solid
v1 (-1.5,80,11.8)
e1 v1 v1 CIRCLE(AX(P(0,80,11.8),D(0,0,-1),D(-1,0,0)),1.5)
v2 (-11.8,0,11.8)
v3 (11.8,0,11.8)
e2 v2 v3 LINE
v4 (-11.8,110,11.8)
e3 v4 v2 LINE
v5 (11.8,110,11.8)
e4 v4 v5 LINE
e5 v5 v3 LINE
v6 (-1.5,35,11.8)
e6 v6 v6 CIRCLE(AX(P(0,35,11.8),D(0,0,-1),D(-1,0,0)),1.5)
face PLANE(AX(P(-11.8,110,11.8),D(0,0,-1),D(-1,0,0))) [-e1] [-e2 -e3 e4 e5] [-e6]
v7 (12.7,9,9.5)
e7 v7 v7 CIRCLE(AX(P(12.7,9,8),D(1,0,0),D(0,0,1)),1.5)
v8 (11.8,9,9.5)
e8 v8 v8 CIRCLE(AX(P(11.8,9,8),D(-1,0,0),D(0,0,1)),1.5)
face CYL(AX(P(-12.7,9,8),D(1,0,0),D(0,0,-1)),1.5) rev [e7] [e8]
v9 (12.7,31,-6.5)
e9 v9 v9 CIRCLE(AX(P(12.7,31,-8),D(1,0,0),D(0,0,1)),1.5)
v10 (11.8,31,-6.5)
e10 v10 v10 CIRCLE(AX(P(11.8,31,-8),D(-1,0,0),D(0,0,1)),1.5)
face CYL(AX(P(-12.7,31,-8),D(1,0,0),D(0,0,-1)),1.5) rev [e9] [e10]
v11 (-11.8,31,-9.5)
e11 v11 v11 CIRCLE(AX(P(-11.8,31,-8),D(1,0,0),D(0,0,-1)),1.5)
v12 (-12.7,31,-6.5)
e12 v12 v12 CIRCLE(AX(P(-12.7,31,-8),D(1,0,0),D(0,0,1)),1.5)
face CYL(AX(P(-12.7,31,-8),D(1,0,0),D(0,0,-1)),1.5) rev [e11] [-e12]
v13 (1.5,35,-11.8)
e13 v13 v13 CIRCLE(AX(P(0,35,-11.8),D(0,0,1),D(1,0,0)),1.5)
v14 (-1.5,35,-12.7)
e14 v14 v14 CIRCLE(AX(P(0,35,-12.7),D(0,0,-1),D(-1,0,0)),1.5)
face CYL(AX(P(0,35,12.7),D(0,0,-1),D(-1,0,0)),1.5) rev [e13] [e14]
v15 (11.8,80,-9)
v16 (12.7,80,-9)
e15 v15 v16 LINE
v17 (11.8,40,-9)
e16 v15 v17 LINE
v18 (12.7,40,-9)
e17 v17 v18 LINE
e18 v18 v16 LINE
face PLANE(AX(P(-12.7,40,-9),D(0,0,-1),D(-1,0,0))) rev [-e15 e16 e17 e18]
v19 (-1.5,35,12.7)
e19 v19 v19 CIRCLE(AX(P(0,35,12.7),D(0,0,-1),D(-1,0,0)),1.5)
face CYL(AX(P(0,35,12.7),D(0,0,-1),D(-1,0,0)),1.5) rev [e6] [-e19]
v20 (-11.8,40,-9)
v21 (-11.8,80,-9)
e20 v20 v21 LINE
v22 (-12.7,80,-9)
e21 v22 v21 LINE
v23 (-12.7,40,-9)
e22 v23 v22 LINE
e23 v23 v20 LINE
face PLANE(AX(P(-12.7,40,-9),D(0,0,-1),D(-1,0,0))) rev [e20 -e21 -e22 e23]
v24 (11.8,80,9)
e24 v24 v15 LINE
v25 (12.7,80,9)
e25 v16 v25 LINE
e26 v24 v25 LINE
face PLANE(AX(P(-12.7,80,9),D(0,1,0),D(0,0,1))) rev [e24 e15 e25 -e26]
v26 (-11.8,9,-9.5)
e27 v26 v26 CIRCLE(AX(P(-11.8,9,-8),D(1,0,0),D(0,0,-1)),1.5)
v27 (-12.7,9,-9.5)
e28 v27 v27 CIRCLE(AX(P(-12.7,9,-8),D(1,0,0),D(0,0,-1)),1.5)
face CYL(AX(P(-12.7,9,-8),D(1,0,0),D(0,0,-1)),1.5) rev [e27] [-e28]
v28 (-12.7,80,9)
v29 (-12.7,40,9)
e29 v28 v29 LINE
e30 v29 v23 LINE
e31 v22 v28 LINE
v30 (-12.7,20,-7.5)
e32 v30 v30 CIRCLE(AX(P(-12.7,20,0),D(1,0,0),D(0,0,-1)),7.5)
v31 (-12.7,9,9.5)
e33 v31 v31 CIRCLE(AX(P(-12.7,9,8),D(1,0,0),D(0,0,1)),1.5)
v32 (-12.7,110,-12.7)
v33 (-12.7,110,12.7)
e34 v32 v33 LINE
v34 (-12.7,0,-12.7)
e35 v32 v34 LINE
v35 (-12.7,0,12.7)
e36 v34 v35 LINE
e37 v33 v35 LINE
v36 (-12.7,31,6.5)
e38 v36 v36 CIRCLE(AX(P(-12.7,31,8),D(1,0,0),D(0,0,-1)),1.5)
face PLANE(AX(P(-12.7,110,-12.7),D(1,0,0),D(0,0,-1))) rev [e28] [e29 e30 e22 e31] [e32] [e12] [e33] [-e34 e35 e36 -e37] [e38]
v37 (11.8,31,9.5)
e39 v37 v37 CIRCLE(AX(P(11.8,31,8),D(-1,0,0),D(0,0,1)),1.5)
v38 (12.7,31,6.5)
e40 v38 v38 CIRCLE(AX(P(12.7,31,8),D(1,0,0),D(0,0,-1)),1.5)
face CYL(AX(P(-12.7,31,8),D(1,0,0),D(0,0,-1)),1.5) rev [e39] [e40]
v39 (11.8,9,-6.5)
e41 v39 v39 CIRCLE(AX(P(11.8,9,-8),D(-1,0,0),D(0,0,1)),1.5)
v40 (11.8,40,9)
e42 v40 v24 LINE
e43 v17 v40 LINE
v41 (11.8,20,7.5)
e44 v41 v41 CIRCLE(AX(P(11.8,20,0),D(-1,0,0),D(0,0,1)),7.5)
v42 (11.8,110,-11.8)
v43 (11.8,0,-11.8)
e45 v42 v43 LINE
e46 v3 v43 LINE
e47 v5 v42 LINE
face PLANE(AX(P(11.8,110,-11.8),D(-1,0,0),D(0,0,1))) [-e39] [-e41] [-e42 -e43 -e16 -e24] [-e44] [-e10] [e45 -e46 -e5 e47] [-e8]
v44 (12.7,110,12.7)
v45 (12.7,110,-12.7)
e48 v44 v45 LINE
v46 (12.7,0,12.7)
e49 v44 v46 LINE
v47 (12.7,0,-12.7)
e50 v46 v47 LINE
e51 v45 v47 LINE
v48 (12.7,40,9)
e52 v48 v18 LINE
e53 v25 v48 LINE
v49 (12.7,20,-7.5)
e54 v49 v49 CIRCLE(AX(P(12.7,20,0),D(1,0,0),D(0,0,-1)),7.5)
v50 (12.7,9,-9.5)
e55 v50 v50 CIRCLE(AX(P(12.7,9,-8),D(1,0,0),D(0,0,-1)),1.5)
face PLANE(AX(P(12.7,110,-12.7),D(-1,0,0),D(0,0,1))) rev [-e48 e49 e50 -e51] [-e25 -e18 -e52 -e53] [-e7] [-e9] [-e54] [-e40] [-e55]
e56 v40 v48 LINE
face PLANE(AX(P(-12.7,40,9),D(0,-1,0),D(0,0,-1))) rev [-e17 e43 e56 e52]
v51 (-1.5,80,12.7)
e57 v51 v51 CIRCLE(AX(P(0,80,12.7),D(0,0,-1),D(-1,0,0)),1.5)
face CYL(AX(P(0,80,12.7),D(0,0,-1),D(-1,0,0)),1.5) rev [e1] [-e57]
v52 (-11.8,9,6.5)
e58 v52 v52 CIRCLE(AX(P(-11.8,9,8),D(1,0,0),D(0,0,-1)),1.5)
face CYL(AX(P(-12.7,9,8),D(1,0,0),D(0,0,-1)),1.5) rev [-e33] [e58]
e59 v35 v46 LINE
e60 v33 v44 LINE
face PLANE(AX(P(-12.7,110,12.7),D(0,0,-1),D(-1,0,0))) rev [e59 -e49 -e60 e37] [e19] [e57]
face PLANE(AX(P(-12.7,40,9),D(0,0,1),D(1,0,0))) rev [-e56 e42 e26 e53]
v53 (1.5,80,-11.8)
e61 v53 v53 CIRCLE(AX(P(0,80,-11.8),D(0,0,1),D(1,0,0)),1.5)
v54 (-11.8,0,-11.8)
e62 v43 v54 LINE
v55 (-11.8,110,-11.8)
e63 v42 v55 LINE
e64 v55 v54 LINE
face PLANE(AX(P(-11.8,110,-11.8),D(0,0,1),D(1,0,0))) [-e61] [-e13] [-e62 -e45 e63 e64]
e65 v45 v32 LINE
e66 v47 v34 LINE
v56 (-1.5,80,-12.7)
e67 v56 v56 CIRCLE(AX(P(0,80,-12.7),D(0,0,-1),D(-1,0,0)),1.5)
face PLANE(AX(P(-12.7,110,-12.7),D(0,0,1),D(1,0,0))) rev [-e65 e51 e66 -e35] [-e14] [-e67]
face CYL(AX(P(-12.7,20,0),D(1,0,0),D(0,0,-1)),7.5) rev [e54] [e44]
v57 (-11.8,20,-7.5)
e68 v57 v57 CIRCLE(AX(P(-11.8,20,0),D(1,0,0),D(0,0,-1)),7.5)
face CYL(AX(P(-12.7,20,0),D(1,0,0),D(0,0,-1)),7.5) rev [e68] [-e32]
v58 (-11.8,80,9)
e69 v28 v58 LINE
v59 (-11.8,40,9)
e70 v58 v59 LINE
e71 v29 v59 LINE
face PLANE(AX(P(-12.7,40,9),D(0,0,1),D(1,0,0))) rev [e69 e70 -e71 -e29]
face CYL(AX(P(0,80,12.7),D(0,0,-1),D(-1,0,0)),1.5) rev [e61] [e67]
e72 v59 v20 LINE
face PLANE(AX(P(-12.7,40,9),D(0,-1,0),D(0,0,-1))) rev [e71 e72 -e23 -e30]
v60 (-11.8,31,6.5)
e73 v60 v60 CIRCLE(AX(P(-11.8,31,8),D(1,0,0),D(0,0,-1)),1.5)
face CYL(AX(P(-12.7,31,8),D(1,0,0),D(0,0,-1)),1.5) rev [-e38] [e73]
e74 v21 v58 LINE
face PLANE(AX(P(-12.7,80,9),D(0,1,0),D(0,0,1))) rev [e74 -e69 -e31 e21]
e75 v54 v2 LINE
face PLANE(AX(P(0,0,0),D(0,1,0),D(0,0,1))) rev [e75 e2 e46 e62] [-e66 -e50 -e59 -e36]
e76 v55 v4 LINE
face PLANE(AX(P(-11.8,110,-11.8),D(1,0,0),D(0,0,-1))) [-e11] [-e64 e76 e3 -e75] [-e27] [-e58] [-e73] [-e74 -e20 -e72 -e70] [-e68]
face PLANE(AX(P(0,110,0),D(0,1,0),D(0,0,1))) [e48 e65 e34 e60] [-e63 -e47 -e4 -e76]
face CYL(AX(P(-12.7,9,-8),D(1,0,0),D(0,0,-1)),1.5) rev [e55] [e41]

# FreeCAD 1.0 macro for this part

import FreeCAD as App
import Part
import Sketcher
from FreeCAD import Vector

doc = App.newDocument("Part")
params = doc.addObject("Spreadsheet::Sheet", "Params")
for row, (alias, value) in enumerate([
    ("sketch1_width", "25.4 mm"),
    ("sketch1_width2", "23.6 mm"),
    ("pad1_length", "110 mm"),
    ("sketch2_diameter", "15 mm"),
    ("sketch2_width", "40 mm"),
    ("sketch2_height", "18 mm"),
    ("pocket1_length", "25.4 mm"),
    ("sketch3_diameter", "3 mm"),
    ("pocket2_length", "25.4 mm"),
    ("sketch4_diameter", "3 mm"),
    ("pocket3_length", "25.4 mm"),
], start=1):
    params.set(f"A{row}", alias)
    params.set(f"B{row}", "=" + value)
    params.setAlias(f"B{row}", alias)

body = doc.addObject("PartDesign::Body", "Body")

# Sketch on XZ plane
sketch1 = doc.addObject("Sketcher::SketchObject", "Sketch")
body.addObject(sketch1)
sketch1.AttachmentSupport = (doc.XZ_Plane, [""])
sketch1.MapMode = "FlatFace"
sketch1.addGeometry([
    Part.LineSegment(Vector(-12.7, -12.7, 0), Vector(-12.7, 12.7, 0)),  # 0
    Part.LineSegment(Vector(-12.7, 12.7, 0), Vector(12.7, 12.7, 0)),  # 1
    Part.LineSegment(Vector(12.7, 12.7, 0), Vector(12.7, -12.7, 0)),  # 2
    Part.LineSegment(Vector(12.7, -12.7, 0), Vector(-12.7, -12.7, 0)),  # 3
    Part.LineSegment(Vector(11.8, 11.8, 0), Vector(-11.8, 11.8, 0)),  # 4
    Part.LineSegment(Vector(-11.8, 11.8, 0), Vector(-11.8, -11.8, 0)),  # 5
    Part.LineSegment(Vector(-11.8, -11.8, 0), Vector(11.8, -11.8, 0)),  # 6
    Part.LineSegment(Vector(11.8, -11.8, 0), Vector(11.8, 11.8, 0)),  # 7
], False)
sketch1.addConstraint([
    Sketcher.Constraint("Coincident", 0, 2, 1, 1),
    Sketcher.Constraint("Coincident", 1, 2, 2, 1),
    Sketcher.Constraint("Coincident", 2, 2, 3, 1),
    Sketcher.Constraint("Coincident", 3, 2, 0, 1),
    Sketcher.Constraint("Coincident", 4, 2, 5, 1),
    Sketcher.Constraint("Coincident", 5, 2, 6, 1),
    Sketcher.Constraint("Coincident", 6, 2, 7, 1),
    Sketcher.Constraint("Coincident", 7, 2, 4, 1),
    Sketcher.Constraint("Vertical", 0),
    Sketcher.Constraint("Horizontal", 1),
    Sketcher.Constraint("Vertical", 2),
    Sketcher.Constraint("Horizontal", 3),
    Sketcher.Constraint("Horizontal", 4),
    Sketcher.Constraint("Vertical", 5),
    Sketcher.Constraint("Horizontal", 6),
    Sketcher.Constraint("Vertical", 7),
    Sketcher.Constraint("Symmetric", 0, 2, 2, 2, -1, 1),
    Sketcher.Constraint("Symmetric", 4, 2, 6, 2, -1, 1),
    Sketcher.Constraint("Equal", 3, 0),
    Sketcher.Constraint("Equal", 6, 5),
    Sketcher.Constraint("DistanceX", 1, 1, 1, 2, 25.4),
    Sketcher.Constraint("DistanceX", 4, 2, 4, 1, 23.6),
])
sketch1.setExpression("Constraints[20]", "Params.sketch1_width")
sketch1.setExpression("Constraints[21]", "Params.sketch1_width2")
pad1 = doc.addObject("PartDesign::Pad", "Pad")
body.addObject(pad1)
pad1.Profile = sketch1
pad1.setExpression("Length", "Params.pad1_length")
pad1.Reversed = True

# Sketch on YZ plane
sketch2 = doc.addObject("Sketcher::SketchObject", "Sketch001")
body.addObject(sketch2)
sketch2.AttachmentSupport = (doc.YZ_Plane, [""])
sketch2.MapMode = "FlatFace"
sketch2.AttachmentOffset = App.Placement(Vector(0, 0, 12.7), App.Rotation())
sketch2.addGeometry([
    Part.Circle(Vector(20, 0, 0), Vector(0, 0, 1), 7.5),  # 0
    Part.LineSegment(Vector(80, 9, 0), Vector(40, 9, 0)),  # 1
    Part.LineSegment(Vector(40, 9, 0), Vector(40, -9, 0)),  # 2
    Part.LineSegment(Vector(40, -9, 0), Vector(80, -9, 0)),  # 3
    Part.LineSegment(Vector(80, -9, 0), Vector(80, 9, 0)),  # 4
], False)
sketch2.addConstraint([
    Sketcher.Constraint("Coincident", 1, 2, 2, 1),
    Sketcher.Constraint("Coincident", 2, 2, 3, 1),
    Sketcher.Constraint("Coincident", 3, 2, 4, 1),
    Sketcher.Constraint("Coincident", 4, 2, 1, 1),
    Sketcher.Constraint("Horizontal", 1),
    Sketcher.Constraint("Vertical", 2),
    Sketcher.Constraint("Horizontal", 3),
    Sketcher.Constraint("Vertical", 4),
    Sketcher.Constraint("PointOnObject", 0, 3, -1),
    Sketcher.Constraint("Diameter", 0, 15.0),
    Sketcher.Constraint("DistanceX", 1, 2, 1, 1, 40.0),
    Sketcher.Constraint("DistanceY", 2, 2, 2, 1, 18.0),
    Sketcher.Constraint("DistanceX", -1, 1, 0, 3, 20.0),
    Sketcher.Constraint("DistanceX", -1, 1, 1, 2, 40.0),
    Sketcher.Constraint("DistanceY", -1, 1, 1, 2, 9.0),
])
sketch2.setExpression("Constraints[9]", "Params.sketch2_diameter")
sketch2.setExpression("Constraints[10]", "Params.sketch2_width")
sketch2.setExpression("Constraints[11]", "Params.sketch2_height")
pocket1 = doc.addObject("PartDesign::Pocket", "Pocket")
body.addObject(pocket1)
pocket1.Profile = sketch2
pocket1.setExpression("Length", "Params.pocket1_length")

# Sketch on XY plane
sketch3 = doc.addObject("Sketcher::SketchObject", "Sketch002")
body.addObject(sketch3)
sketch3.AttachmentSupport = (doc.XY_Plane, [""])
sketch3.MapMode = "FlatFace"
sketch3.AttachmentOffset = App.Placement(Vector(0, 0, -12.7), App.Rotation())
sketch3.addGeometry([
    Part.Circle(Vector(0, 35, 0), Vector(0, 0, 1), 1.5),
    Part.Circle(Vector(0, 80, 0), Vector(0, 0, 1), 1.5),
], False)
sketch3.addConstraint([
    Sketcher.Constraint("Equal", 0, 1),
    Sketcher.Constraint("PointOnObject", 0, 3, -2),
    Sketcher.Constraint("PointOnObject", 1, 3, -2),
    Sketcher.Constraint("Diameter", 0, 3.0),
    Sketcher.Constraint("DistanceY", -1, 1, 0, 3, 35.0),
    Sketcher.Constraint("DistanceY", -1, 1, 1, 3, 80.0),
])
sketch3.setExpression("Constraints[3]", "Params.sketch3_diameter")
pocket2 = doc.addObject("PartDesign::Pocket", "Pocket001")
body.addObject(pocket2)
pocket2.Profile = sketch3
pocket2.setExpression("Length", "Params.pocket2_length")
pocket2.Reversed = True

# Sketch on YZ plane
sketch4 = doc.addObject("Sketcher::SketchObject", "Sketch003")
body.addObject(sketch4)
sketch4.AttachmentSupport = (doc.YZ_Plane, [""])
sketch4.MapMode = "FlatFace"
sketch4.AttachmentOffset = App.Placement(Vector(0, 0, 12.7), App.Rotation())
sketch4.addGeometry([
    Part.Circle(Vector(9, -8, 0), Vector(0, 0, 1), 1.5),
    Part.Circle(Vector(31, -8, 0), Vector(0, 0, 1), 1.5),
    Part.Circle(Vector(9, 8, 0), Vector(0, 0, 1), 1.5),
    Part.Circle(Vector(31, 8, 0), Vector(0, 0, 1), 1.5),
], False)
sketch4.addConstraint([
    Sketcher.Constraint("Equal", 0, 1),
    Sketcher.Constraint("Equal", 1, 2),
    Sketcher.Constraint("Equal", 2, 3),
    Sketcher.Constraint("Symmetric", 0, 3, 2, 3, -1),
    Sketcher.Constraint("Symmetric", 1, 3, 3, 3, -1),
    Sketcher.Constraint("Horizontal", 0, 3, 1, 3),
    Sketcher.Constraint("Diameter", 0, 3.0),
    Sketcher.Constraint("DistanceX", -1, 1, 0, 3, 9.0),
    Sketcher.Constraint("DistanceY", 0, 3, -1, 1, 8.0),
    Sketcher.Constraint("DistanceX", -1, 1, 1, 3, 31.0),
])
sketch4.setExpression("Constraints[6]", "Params.sketch4_diameter")
pocket3 = doc.addObject("PartDesign::Pocket", "Pocket002")
body.addObject(pocket3)
pocket3.Profile = sketch4
pocket3.setExpression("Length", "Params.pocket3_length")

doc.recompute()
